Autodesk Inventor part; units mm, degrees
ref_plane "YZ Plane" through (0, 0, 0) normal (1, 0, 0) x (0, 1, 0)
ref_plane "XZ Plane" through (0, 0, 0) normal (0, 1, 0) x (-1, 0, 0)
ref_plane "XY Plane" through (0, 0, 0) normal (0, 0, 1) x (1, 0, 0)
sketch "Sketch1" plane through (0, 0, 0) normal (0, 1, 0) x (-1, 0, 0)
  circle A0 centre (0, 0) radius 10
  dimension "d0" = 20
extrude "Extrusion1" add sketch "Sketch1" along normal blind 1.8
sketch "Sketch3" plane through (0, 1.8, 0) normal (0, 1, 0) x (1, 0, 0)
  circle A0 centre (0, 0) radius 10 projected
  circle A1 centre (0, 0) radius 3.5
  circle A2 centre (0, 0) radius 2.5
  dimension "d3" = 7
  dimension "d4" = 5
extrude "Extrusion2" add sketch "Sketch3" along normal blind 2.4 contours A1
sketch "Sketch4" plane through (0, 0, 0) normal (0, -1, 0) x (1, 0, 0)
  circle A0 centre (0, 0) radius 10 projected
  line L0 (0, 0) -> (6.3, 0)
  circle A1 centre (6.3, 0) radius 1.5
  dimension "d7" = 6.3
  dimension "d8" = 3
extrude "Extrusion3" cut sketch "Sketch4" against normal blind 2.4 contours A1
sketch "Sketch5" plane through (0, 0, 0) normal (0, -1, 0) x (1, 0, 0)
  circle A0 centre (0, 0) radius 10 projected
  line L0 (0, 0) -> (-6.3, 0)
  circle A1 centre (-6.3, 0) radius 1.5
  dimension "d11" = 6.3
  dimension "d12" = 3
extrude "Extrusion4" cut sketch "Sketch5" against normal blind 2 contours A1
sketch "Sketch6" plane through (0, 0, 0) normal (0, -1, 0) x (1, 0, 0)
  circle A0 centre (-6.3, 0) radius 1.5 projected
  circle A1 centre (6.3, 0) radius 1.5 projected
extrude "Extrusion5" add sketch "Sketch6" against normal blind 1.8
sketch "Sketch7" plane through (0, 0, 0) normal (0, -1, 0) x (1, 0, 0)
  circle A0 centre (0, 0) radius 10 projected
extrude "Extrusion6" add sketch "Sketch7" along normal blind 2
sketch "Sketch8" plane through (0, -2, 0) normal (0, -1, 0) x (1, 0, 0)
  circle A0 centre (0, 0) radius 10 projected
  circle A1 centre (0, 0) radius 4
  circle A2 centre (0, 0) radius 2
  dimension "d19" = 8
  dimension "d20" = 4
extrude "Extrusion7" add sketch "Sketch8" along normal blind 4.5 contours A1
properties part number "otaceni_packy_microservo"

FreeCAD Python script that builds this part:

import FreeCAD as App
import Part
import Sketcher
Q = App.Units.Quantity

doc = App.newDocument("Part")
body = doc.addObject("PartDesign::Body", "Body")

sketch1 = doc.addObject("Sketcher::SketchObject", "Sketch")
body.addObject(sketch1)
sketch1.AttachmentSupport = (doc.XZ_Plane, [""])
sketch1.MapMode = "FlatFace"
sketch1.addGeometry(Part.Circle(App.Vector(0, 0, 0), App.Vector(0, 0, 1), 10), False)
sketch1.addConstraint(Sketcher.Constraint("Coincident", 0, 3, -1, 1))
sketch1.addConstraint(Sketcher.Constraint("Diameter", 0, Q("20 mm")))
pad1 = doc.addObject("PartDesign::Pad", "Pad")
body.addObject(pad1)
pad1.Profile = sketch1
pad1.Length = 1.8
pad1.Reversed = True

sketch2 = doc.addObject("Sketcher::SketchObject", "Sketch001")
body.addObject(sketch2)
sketch2.AttachmentSupport = (doc.XZ_Plane, [""])
sketch2.MapMode = "FlatFace"
sketch2.AttachmentOffset = App.Placement(App.Vector(0, 0, -1.8), App.Rotation())
sketch2.addGeometry(Part.Circle(App.Vector(0, 0, 0), App.Vector(0, 0, 1), 3.5), False)
sketch2.addGeometry(Part.Circle(App.Vector(0, 0, 0), App.Vector(0, 0, 1), 2.5), False)
sketch2.addConstraint(Sketcher.Constraint("Coincident", 0, 3, -1, 1))
sketch2.addConstraint(Sketcher.Constraint("Coincident", 1, 3, -1, 1))
sketch2.addConstraint(Sketcher.Constraint("Diameter", 0, Q("7 mm")))
sketch2.addConstraint(Sketcher.Constraint("Diameter", 1, Q("5 mm")))
pad2 = doc.addObject("PartDesign::Pad", "Pad001")
body.addObject(pad2)
pad2.Profile = sketch2
pad2.Length = 2.4
pad2.Reversed = True

sketch3 = doc.addObject("Sketcher::SketchObject", "Sketch002")
body.addObject(sketch3)
sketch3.AttachmentSupport = (doc.XZ_Plane, [""])
sketch3.MapMode = "FlatFace"
sketch3.addGeometry(Part.Circle(App.Vector(6.3, 0, 0), App.Vector(0, 0, 1), 1.5), False)
sketch3.addConstraint(Sketcher.Constraint("PointOnObject", 0, 3, -1))
sketch3.addConstraint(Sketcher.Constraint("Diameter", 0, Q("3 mm")))
sketch3.addConstraint(Sketcher.Constraint("DistanceX", -1, 1, 0, 3, Q("6.3 mm")))
pocket1 = doc.addObject("PartDesign::Pocket", "Pocket")
body.addObject(pocket1)
pocket1.Profile = sketch3
pocket1.Length = 2.4

sketch4 = doc.addObject("Sketcher::SketchObject", "Sketch003")
body.addObject(sketch4)
sketch4.AttachmentSupport = (doc.XZ_Plane, [""])
sketch4.MapMode = "FlatFace"
sketch4.addGeometry(Part.Circle(App.Vector(-6.3, 0, 0), App.Vector(0, 0, 1), 1.5), False)
sketch4.addConstraint(Sketcher.Constraint("PointOnObject", 0, 3, -1))
sketch4.addConstraint(Sketcher.Constraint("Diameter", 0, Q("3 mm")))
sketch4.addConstraint(Sketcher.Constraint("DistanceX", 0, 3, -1, 1, Q("6.3 mm")))
pocket2 = doc.addObject("PartDesign::Pocket", "Pocket001")
body.addObject(pocket2)
pocket2.Profile = sketch4
pocket2.Length = 2

sketch5 = doc.addObject("Sketcher::SketchObject", "Sketch004")
body.addObject(sketch5)
sketch5.AttachmentSupport = (doc.XZ_Plane, [""])
sketch5.MapMode = "FlatFace"
sketch5.addGeometry(Part.Circle(App.Vector(-6.3, 0, 0), App.Vector(0, 0, 1), 1.5), False)
sketch5.addGeometry(Part.Circle(App.Vector(6.3, 0, 0), App.Vector(0, 0, 1), 1.5), False)
sketch5.addConstraint(Sketcher.Constraint("Equal", 0, 1))
sketch5.addConstraint(Sketcher.Constraint("Symmetric", 0, 3, 1, 3, -1, 1))
sketch5.addConstraint(Sketcher.Constraint("PointOnObject", 0, 3, -1))
sketch5.addConstraint(Sketcher.Constraint("Diameter", 0, Q("3 mm")))
sketch5.addConstraint(Sketcher.Constraint("DistanceX", 0, 3, -1, 1, Q("6.3 mm")))
pad3 = doc.addObject("PartDesign::Pad", "Pad002")
body.addObject(pad3)
pad3.Profile = sketch5
pad3.Length = 1.8
pad3.Reversed = True

sketch6 = doc.addObject("Sketcher::SketchObject", "Sketch005")
body.addObject(sketch6)
sketch6.AttachmentSupport = (doc.XZ_Plane, [""])
sketch6.MapMode = "FlatFace"
sketch6.addGeometry(Part.Circle(App.Vector(0, 0, 0), App.Vector(0, 0, 1), 10), False)
sketch6.addConstraint(Sketcher.Constraint("Coincident", 0, 3, -1, 1))
sketch6.addConstraint(Sketcher.Constraint("Diameter", 0, Q("20 mm")))
pad4 = doc.addObject("PartDesign::Pad", "Pad003")
body.addObject(pad4)
pad4.Profile = sketch6
pad4.Length = 2

sketch7 = doc.addObject("Sketcher::SketchObject", "Sketch006")
body.addObject(sketch7)
sketch7.AttachmentSupport = (doc.XZ_Plane, [""])
sketch7.MapMode = "FlatFace"
sketch7.AttachmentOffset = App.Placement(App.Vector(0, 0, 2), App.Rotation())
sketch7.addGeometry(Part.Circle(App.Vector(0, 0, 0), App.Vector(0, 0, 1), 4), False)
sketch7.addGeometry(Part.Circle(App.Vector(0, 0, 0), App.Vector(0, 0, 1), 2), False)
sketch7.addConstraint(Sketcher.Constraint("Coincident", 0, 3, -1, 1))
sketch7.addConstraint(Sketcher.Constraint("Coincident", 1, 3, -1, 1))
sketch7.addConstraint(Sketcher.Constraint("Diameter", 0, Q("8 mm")))
sketch7.addConstraint(Sketcher.Constraint("Diameter", 1, Q("4 mm")))
pad5 = doc.addObject("PartDesign::Pad", "Pad004")
body.addObject(pad5)
pad5.Profile = sketch7
pad5.Length = 4.5

doc.recompute()
